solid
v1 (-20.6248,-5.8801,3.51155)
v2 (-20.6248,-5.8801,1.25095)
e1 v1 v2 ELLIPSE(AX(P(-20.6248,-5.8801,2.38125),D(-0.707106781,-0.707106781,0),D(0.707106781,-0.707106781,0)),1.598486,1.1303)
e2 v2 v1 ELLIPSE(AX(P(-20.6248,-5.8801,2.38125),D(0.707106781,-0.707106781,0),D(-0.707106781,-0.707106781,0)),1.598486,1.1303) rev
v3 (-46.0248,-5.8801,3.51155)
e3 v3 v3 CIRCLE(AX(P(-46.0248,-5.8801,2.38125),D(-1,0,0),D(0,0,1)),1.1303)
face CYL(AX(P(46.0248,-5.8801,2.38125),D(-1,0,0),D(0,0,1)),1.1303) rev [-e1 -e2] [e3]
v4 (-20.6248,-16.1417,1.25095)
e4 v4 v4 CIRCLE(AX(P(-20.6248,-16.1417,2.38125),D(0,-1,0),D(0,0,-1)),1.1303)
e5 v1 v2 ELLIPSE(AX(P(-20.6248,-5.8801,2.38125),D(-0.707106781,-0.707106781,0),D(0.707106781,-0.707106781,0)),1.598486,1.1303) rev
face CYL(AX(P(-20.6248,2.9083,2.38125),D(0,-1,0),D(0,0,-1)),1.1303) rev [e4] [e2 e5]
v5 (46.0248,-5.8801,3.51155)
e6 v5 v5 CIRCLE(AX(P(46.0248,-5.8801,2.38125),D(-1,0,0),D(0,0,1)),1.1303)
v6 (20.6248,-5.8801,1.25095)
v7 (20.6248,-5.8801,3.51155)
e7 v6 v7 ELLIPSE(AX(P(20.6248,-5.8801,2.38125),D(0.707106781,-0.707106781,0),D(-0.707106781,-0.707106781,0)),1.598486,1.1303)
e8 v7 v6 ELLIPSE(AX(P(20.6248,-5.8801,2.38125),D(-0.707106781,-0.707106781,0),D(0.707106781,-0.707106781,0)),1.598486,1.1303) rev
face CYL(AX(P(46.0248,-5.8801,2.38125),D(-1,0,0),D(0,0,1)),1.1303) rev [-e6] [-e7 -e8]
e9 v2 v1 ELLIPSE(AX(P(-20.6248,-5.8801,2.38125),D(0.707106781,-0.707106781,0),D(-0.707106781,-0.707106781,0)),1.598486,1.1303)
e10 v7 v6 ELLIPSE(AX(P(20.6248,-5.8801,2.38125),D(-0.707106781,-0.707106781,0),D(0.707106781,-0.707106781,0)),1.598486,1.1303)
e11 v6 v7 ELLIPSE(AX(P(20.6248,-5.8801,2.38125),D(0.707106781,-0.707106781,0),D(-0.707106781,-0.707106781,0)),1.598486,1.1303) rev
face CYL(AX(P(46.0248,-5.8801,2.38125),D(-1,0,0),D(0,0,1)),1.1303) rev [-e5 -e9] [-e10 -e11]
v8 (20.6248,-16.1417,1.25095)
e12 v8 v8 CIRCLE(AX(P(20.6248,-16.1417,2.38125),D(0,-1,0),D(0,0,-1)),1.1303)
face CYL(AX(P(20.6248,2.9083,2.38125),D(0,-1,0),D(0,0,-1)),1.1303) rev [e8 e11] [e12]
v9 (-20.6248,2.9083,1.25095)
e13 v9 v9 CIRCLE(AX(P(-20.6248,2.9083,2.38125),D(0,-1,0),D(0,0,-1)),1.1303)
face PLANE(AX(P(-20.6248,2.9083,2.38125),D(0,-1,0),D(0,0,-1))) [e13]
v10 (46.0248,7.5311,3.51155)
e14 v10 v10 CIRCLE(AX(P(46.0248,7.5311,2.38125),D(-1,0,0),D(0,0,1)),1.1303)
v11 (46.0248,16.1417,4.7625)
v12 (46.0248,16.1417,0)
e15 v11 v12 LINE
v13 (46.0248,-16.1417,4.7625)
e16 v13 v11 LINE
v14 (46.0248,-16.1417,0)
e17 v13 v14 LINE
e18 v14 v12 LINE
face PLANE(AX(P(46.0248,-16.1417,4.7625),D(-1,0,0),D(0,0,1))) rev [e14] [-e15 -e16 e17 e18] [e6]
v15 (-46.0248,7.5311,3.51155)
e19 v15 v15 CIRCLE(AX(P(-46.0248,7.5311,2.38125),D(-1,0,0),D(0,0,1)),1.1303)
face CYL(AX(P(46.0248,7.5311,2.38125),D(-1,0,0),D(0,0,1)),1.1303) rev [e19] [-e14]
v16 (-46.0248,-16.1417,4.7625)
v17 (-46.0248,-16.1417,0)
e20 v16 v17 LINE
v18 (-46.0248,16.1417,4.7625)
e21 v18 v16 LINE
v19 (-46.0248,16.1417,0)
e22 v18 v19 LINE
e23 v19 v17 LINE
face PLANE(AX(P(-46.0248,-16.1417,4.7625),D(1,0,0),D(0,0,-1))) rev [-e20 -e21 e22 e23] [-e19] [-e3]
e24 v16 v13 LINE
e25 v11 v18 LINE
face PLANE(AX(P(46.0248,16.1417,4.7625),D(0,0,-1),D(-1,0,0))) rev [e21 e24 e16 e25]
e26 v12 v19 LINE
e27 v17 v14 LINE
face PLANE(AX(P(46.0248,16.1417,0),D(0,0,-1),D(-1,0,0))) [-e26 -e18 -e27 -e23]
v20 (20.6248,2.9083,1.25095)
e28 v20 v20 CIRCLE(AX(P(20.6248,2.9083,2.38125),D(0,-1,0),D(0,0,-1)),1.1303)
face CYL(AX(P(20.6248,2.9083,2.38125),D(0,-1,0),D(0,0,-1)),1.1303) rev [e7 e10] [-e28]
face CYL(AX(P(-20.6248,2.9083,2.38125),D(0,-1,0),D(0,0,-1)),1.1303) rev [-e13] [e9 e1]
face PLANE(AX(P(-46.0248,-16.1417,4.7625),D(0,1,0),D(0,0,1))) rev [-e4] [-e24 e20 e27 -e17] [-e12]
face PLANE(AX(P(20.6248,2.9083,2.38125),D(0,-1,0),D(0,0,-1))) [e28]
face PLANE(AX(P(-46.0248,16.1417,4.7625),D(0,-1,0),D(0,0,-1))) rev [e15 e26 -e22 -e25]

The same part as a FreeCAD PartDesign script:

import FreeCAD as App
import Part
import Sketcher

V = App.Vector
Q = App.Units.Quantity


def add_polygon(sketch, points):
    """Adds a closed chain of lines whose ends are joined by coincident constraints."""
    first, n = sketch.GeometryCount, len(points)
    for a, b in zip(points, points[1:] + points[:1]):
        sketch.addGeometry(Part.LineSegment(App.Vector(*a, 0), App.Vector(*b, 0)), False)
    for i in range(n):
        sketch.addConstraint(Sketcher.Constraint("Coincident", first + i, 2, first + (i + 1) % n, 1))

doc = App.newDocument("Part")
body = doc.addObject("PartDesign::Body", "Body")

sketch1 = body.newObject("Sketcher::SketchObject", "Sketch")
sketch1.AttachmentSupport = (doc.getObject("XY_Plane"), [""])
sketch1.MapMode = "FlatFace"
add_polygon(sketch1, [(-46, 16), (-46, -16), (46, -16), (46, 16)])
sketch1.addConstraint(Sketcher.Constraint("Vertical", 0))
sketch1.addConstraint(Sketcher.Constraint("Horizontal", 1))
sketch1.addConstraint(Sketcher.Constraint("Vertical", 2))
sketch1.addConstraint(Sketcher.Constraint("Horizontal", 3))
sketch1.addConstraint(Sketcher.Constraint("Symmetric", 0, 2, 2, 2, -1, 1))
sketch1.addConstraint(Sketcher.Constraint("DistanceX", 1, 1, 1, 2, Q("3.624 in")))
sketch1.addConstraint(Sketcher.Constraint("DistanceY", 0, 2, 0, 1, Q("1.271 in")))
pad1 = body.newObject("PartDesign::Pad", "Pad")
pad1.Profile = sketch1
pad1.Length = Q("0.1875 in")

sketch2 = body.newObject("Sketcher::SketchObject", "Sketch001")
sketch2.AttachmentSupport = (doc.getObject("XZ_Plane"), [""])
sketch2.MapMode = "FlatFace"
sketch2.AttachmentOffset = App.Placement(V(0, 0, 0.6355 * 25.4), App.Rotation())
sketch2.addGeometry(Part.Circle(V(-20.6, 2.4, 0), V(0, 0, 1), 1.1), False)
sketch2.addGeometry(Part.Circle(V(20.6, 2.4, 0), V(0, 0, 1), 1.1), False)
sketch2.addConstraint(Sketcher.Constraint("Equal", 0, 1))
sketch2.addConstraint(Sketcher.Constraint("Symmetric", 0, 3, 1, 3, -2))
sketch2.addConstraint(Sketcher.Constraint("Diameter", 0, Q("0.089 in")))
sketch2.addConstraint(Sketcher.Constraint("DistanceX", 0, 3, -1, 1, Q("0.812 in")))
sketch2.addConstraint(Sketcher.Constraint("DistanceY", -1, 1, 0, 3, Q("0.09375 in")))
pocket1 = body.newObject("PartDesign::Pocket", "Pocket")
pocket1.Profile = sketch2
pocket1.Length = Q("0.75 in")

sketch3 = body.newObject("Sketcher::SketchObject", "Sketch002")
sketch3.AttachmentSupport = (doc.getObject("YZ_Plane"), [""])
sketch3.MapMode = "FlatFace"
sketch3.AttachmentOffset = App.Placement(V(0, 0, -1.812 * 25.4), App.Rotation())
sketch3.addGeometry(Part.Circle(V(7.5, 2.4, 0), V(0, 0, 1), 1.1), False)
sketch3.addGeometry(Part.Circle(V(-5.9, 2.4, 0), V(0, 0, 1), 1.1), False)
sketch3.addConstraint(Sketcher.Constraint("Equal", 0, 1))
sketch3.addConstraint(Sketcher.Constraint("Horizontal", 0, 3, 1, 3))
sketch3.addConstraint(Sketcher.Constraint("Diameter", 0, Q("0.089 in")))
sketch3.addConstraint(Sketcher.Constraint("DistanceY", -1, 1, 0, 3, Q("0.09375 in")))
sketch3.addConstraint(Sketcher.Constraint("DistanceX", 1, 3, 0, 3, Q("0.528 in")))
sketch3.addConstraint(Sketcher.Constraint("DistanceX", -1, 1, 0, 3, Q("0.2965 in")))
pocket2 = body.newObject("PartDesign::Pocket", "Pocket001")
pocket2.Profile = sketch3
pocket2.Type = "ThroughAll"
pocket2.Reversed = True

doc.recompute()
